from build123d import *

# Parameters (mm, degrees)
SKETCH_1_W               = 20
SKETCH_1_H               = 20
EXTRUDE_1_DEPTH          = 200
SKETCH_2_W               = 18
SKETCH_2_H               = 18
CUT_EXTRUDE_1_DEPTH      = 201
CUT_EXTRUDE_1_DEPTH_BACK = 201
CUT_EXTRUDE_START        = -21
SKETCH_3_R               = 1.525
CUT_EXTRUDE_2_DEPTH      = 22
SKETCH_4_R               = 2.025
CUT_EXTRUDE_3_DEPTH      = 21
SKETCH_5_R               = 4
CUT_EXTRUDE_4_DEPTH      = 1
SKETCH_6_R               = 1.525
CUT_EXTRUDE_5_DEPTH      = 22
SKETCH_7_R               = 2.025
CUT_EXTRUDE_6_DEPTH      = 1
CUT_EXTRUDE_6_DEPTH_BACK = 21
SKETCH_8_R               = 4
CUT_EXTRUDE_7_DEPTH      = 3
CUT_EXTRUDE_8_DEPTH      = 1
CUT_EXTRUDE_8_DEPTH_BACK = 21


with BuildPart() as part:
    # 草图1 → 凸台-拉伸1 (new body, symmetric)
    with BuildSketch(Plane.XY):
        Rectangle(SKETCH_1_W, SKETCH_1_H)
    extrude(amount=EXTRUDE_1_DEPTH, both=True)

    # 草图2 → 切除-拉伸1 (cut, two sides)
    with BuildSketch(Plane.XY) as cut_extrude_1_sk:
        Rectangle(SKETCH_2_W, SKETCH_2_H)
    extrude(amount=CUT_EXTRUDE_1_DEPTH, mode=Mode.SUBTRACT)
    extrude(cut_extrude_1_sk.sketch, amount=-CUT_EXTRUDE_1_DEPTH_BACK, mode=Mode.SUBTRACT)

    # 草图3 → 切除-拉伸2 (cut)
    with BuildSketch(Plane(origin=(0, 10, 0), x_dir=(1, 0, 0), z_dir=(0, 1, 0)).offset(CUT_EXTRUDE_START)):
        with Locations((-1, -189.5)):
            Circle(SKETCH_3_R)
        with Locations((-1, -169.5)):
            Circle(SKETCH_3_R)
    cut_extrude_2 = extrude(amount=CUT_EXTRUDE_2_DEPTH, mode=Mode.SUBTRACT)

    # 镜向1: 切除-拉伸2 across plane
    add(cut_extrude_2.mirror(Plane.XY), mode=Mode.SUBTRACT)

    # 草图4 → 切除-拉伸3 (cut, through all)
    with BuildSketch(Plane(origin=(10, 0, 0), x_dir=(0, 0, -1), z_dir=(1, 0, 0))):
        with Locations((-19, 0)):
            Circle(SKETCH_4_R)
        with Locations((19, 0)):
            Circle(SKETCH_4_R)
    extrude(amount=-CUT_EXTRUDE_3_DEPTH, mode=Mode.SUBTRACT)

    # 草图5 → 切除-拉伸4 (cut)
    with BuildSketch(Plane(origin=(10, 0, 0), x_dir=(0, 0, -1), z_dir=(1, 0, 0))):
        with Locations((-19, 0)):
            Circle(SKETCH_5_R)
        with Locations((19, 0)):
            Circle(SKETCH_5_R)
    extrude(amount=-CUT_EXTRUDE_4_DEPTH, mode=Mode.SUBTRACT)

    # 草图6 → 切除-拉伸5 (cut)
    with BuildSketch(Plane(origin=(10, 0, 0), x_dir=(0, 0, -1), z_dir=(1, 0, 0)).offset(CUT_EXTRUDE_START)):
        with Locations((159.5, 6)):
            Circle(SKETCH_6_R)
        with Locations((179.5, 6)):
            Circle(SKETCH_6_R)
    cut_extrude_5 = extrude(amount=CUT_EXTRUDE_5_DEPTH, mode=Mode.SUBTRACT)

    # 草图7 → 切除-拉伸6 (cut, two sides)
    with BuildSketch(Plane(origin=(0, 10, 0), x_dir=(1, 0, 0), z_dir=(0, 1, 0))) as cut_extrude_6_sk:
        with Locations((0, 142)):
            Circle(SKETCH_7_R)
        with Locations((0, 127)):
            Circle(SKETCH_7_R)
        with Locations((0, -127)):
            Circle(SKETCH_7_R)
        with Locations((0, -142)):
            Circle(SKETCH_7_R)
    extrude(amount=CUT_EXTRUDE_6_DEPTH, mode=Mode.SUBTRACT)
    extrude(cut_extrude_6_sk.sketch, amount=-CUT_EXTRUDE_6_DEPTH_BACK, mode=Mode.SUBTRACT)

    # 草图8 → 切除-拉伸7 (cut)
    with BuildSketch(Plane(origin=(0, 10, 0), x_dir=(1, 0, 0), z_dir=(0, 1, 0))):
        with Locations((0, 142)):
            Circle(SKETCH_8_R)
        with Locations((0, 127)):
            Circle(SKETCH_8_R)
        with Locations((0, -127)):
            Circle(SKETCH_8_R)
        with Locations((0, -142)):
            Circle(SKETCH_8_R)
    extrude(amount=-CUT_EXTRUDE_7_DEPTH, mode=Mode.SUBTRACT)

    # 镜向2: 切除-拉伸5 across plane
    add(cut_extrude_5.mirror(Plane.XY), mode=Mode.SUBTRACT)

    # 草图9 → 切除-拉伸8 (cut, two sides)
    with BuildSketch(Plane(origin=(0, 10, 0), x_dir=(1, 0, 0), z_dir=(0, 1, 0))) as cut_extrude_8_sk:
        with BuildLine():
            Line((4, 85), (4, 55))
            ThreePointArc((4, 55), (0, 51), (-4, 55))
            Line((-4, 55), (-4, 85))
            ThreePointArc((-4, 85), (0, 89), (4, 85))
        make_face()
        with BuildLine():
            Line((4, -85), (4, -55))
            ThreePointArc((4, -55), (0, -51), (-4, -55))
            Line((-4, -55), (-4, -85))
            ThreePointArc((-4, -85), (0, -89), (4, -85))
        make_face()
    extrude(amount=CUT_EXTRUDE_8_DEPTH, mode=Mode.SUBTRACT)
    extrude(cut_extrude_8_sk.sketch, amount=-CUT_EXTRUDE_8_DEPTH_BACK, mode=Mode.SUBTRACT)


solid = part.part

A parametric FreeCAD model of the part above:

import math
import FreeCAD as App
import Part
import Sketcher

V = App.Vector

doc = App.newDocument("Part")
body = doc.addObject("PartDesign::Body", "Body")

# Sketch on XY plane
sketch1 = body.newObject("Sketcher::SketchObject", "Sketch")
sketch1.AttachmentSupport = (doc.getObject("XY_Plane"), [""])
sketch1.MapMode = "FlatFace"
sketch1.addGeometry([
    Part.LineSegment(V(-10, 10, 0), V(-10, -10, 0)),
    Part.LineSegment(V(-10, -10, 0), V(10, -10, 0)),
    Part.LineSegment(V(10, -10, 0), V(10, 10, 0)),
    Part.LineSegment(V(10, 10, 0), V(-10, 10, 0)),
], False)
sketch1.addConstraint([
    Sketcher.Constraint("Coincident", 0, 2, 1, 1),
    Sketcher.Constraint("Coincident", 1, 2, 2, 1),
    Sketcher.Constraint("Coincident", 2, 2, 3, 1),
    Sketcher.Constraint("Coincident", 3, 2, 0, 1),
    Sketcher.Constraint("Vertical", 0),
    Sketcher.Constraint("Horizontal", 1),
    Sketcher.Constraint("Vertical", 2),
    Sketcher.Constraint("Horizontal", 3),
    Sketcher.Constraint("Symmetric", 0, 2, 2, 2, -1, 1),
    Sketcher.Constraint("Equal", 3, 0),
    Sketcher.Constraint("DistanceX", 1, 1, 1, 2, 20.0),
])
pad1 = body.newObject("PartDesign::Pad", "Pad")
pad1.Profile = sketch1
pad1.Length = 400
pad1.Midplane = True

# Sketch on XY plane
sketch2 = body.newObject("Sketcher::SketchObject", "Sketch001")
sketch2.AttachmentSupport = (doc.getObject("XY_Plane"), [""])
sketch2.MapMode = "FlatFace"
sketch2.addGeometry([
    Part.LineSegment(V(-9, 9, 0), V(-9, -9, 0)),
    Part.LineSegment(V(-9, -9, 0), V(9, -9, 0)),
    Part.LineSegment(V(9, -9, 0), V(9, 9, 0)),
    Part.LineSegment(V(9, 9, 0), V(-9, 9, 0)),
], False)
sketch2.addConstraint([
    Sketcher.Constraint("Coincident", 0, 2, 1, 1),
    Sketcher.Constraint("Coincident", 1, 2, 2, 1),
    Sketcher.Constraint("Coincident", 2, 2, 3, 1),
    Sketcher.Constraint("Coincident", 3, 2, 0, 1),
    Sketcher.Constraint("Vertical", 0),
    Sketcher.Constraint("Horizontal", 1),
    Sketcher.Constraint("Vertical", 2),
    Sketcher.Constraint("Horizontal", 3),
    Sketcher.Constraint("Symmetric", 0, 2, 2, 2, -1, 1),
    Sketcher.Constraint("Equal", 3, 0),
    Sketcher.Constraint("DistanceX", 1, 1, 1, 2, 18.0),
])
pocket1 = body.newObject("PartDesign::Pocket", "Pocket")
pocket1.Profile = sketch2
pocket1.Type = "ThroughAll"
pocket1.Midplane = True

# Sketch on XZ plane
sketch3 = body.newObject("Sketcher::SketchObject", "Sketch002")
sketch3.AttachmentSupport = (doc.getObject("XZ_Plane"), [""])
sketch3.MapMode = "FlatFace"
sketch3.AttachmentOffset = App.Placement(V(0, 0, 11), App.Rotation())
sketch3.addGeometry([
    Part.Circle(V(-1, 189.5, 0), V(0, 0, 1), 1.5),
    Part.Circle(V(-1, 169.5, 0), V(0, 0, 1), 1.5),
], False)
sketch3.addConstraint([
    Sketcher.Constraint("Equal", 0, 1),
    Sketcher.Constraint("Vertical", 0, 3, 1, 3),
    Sketcher.Constraint("Diameter", 0, 3.05),
    Sketcher.Constraint("DistanceX", 0, 3, -1, 1, 1.0),
    Sketcher.Constraint("DistanceY", 1, 3, 0, 3, 20.0),
    Sketcher.Constraint("DistanceY", -1, 1, 0, 3, 189.5),
])
pocket2 = body.newObject("PartDesign::Pocket", "Pocket001")
pocket2.Profile = sketch3
pocket2.Length = 22
doc.recompute()

mirrored = body.newObject("PartDesign::Mirrored", "Mirrored")
mirrored.Originals = [pocket2]
mirrored.MirrorPlane = (doc.getObject("XY_Plane"), [""])
body.Tip = mirrored

# Sketch on YZ plane
sketch4 = body.newObject("Sketcher::SketchObject", "Sketch003")
sketch4.AttachmentSupport = (doc.getObject("YZ_Plane"), [""])
sketch4.MapMode = "FlatFace"
sketch4.AttachmentOffset = App.Placement(V(0, 0, 10), App.Rotation())
sketch4.addGeometry([
    Part.Circle(V(0, 19, 0), V(0, 0, 1), 2),
    Part.Circle(V(0, -19, 0), V(0, 0, 1), 2),
], False)
sketch4.addConstraint([
    Sketcher.Constraint("Equal", 0, 1),
    Sketcher.Constraint("Symmetric", 0, 3, 1, 3, -1, 1),
    Sketcher.Constraint("PointOnObject", 0, 3, -2),
    Sketcher.Constraint("Diameter", 0, 4.05),
    Sketcher.Constraint("DistanceY", -1, 1, 0, 3, 19.0),
])
pocket3 = body.newObject("PartDesign::Pocket", "Pocket002")
pocket3.Profile = sketch4
pocket3.Type = "ThroughAll"

# Sketch on YZ plane
sketch5 = body.newObject("Sketcher::SketchObject", "Sketch004")
sketch5.AttachmentSupport = (doc.getObject("YZ_Plane"), [""])
sketch5.MapMode = "FlatFace"
sketch5.AttachmentOffset = App.Placement(V(0, 0, 10), App.Rotation())
sketch5.addGeometry([
    Part.Circle(V(0, 19, 0), V(0, 0, 1), 4),
    Part.Circle(V(0, -19, 0), V(0, 0, 1), 4),
], False)
sketch5.addConstraint([
    Sketcher.Constraint("Equal", 0, 1),
    Sketcher.Constraint("Symmetric", 0, 3, 1, 3, -1, 1),
    Sketcher.Constraint("PointOnObject", 0, 3, -2),
    Sketcher.Constraint("Diameter", 0, 8.0),
    Sketcher.Constraint("DistanceY", -1, 1, 0, 3, 19.0),
])
pocket4 = body.newObject("PartDesign::Pocket", "Pocket003")
pocket4.Profile = sketch5
pocket4.Length = 1

# Sketch on YZ plane
sketch6 = body.newObject("Sketcher::SketchObject", "Sketch005")
sketch6.AttachmentSupport = (doc.getObject("YZ_Plane"), [""])
sketch6.MapMode = "FlatFace"
sketch6.AttachmentOffset = App.Placement(V(0, 0, -11), App.Rotation())
sketch6.addGeometry([
    Part.Circle(V(6, -159.5, 0), V(0, 0, 1), 1.5),
    Part.Circle(V(6, -179.5, 0), V(0, 0, 1), 1.5),
], False)
sketch6.addConstraint([
    Sketcher.Constraint("Equal", 0, 1),
    Sketcher.Constraint("Vertical", 0, 3, 1, 3),
    Sketcher.Constraint("Diameter", 0, 3.05),
    Sketcher.Constraint("DistanceX", -1, 1, 0, 3, 6.0),
    Sketcher.Constraint("DistanceY", 1, 3, 0, 3, 20.0),
    Sketcher.Constraint("DistanceY", 0, 3, -1, 1, 159.5),
])
pocket5 = body.newObject("PartDesign::Pocket", "Pocket004")
pocket5.Profile = sketch6
pocket5.Length = 22
pocket5.Reversed = True

# Sketch on XZ plane
sketch7 = body.newObject("Sketcher::SketchObject", "Sketch006")
sketch7.AttachmentSupport = (doc.getObject("XZ_Plane"), [""])
sketch7.MapMode = "FlatFace"
sketch7.AttachmentOffset = App.Placement(V(0, 0, -10), App.Rotation())
sketch7.addGeometry([
    Part.Circle(V(0, -142, 0), V(0, 0, 1), 2),
    Part.Circle(V(0, -127, 0), V(0, 0, 1), 2),
    Part.Circle(V(0, 127, 0), V(0, 0, 1), 2),
    Part.Circle(V(0, 142, 0), V(0, 0, 1), 2),
], False)
sketch7.addConstraint([
    Sketcher.Constraint("Equal", 0, 1),
    Sketcher.Constraint("Equal", 1, 2),
    Sketcher.Constraint("Equal", 2, 3),
    Sketcher.Constraint("Symmetric", 1, 3, 2, 3, -1, 1),
    Sketcher.Constraint("Symmetric", 0, 3, 3, 3, -1, 1),
    Sketcher.Constraint("PointOnObject", 0, 3, -2),
    Sketcher.Constraint("PointOnObject", 1, 3, -2),
    Sketcher.Constraint("Diameter", 0, 4.05),
    Sketcher.Constraint("DistanceY", 0, 3, -1, 1, 142.0),
    Sketcher.Constraint("DistanceY", 1, 3, -1, 1, 127.0),
])
pocket6 = body.newObject("PartDesign::Pocket", "Pocket005")
pocket6.Profile = sketch7
pocket6.Type = "ThroughAll"
pocket6.Midplane = True

# Sketch on XZ plane
sketch8 = body.newObject("Sketcher::SketchObject", "Sketch007")
sketch8.AttachmentSupport = (doc.getObject("XZ_Plane"), [""])
sketch8.MapMode = "FlatFace"
sketch8.AttachmentOffset = App.Placement(V(0, 0, -10), App.Rotation())
sketch8.addGeometry([
    Part.Circle(V(0, -142, 0), V(0, 0, 1), 4),
    Part.Circle(V(0, -127, 0), V(0, 0, 1), 4),
    Part.Circle(V(0, 127, 0), V(0, 0, 1), 4),
    Part.Circle(V(0, 142, 0), V(0, 0, 1), 4),
], False)
sketch8.addConstraint([
    Sketcher.Constraint("Equal", 0, 1),
    Sketcher.Constraint("Equal", 1, 2),
    Sketcher.Constraint("Equal", 2, 3),
    Sketcher.Constraint("Symmetric", 1, 3, 2, 3, -1, 1),
    Sketcher.Constraint("Symmetric", 0, 3, 3, 3, -1, 1),
    Sketcher.Constraint("PointOnObject", 0, 3, -2),
    Sketcher.Constraint("PointOnObject", 1, 3, -2),
    Sketcher.Constraint("Diameter", 0, 8.0),
    Sketcher.Constraint("DistanceY", 0, 3, -1, 1, 142.0),
    Sketcher.Constraint("DistanceY", 1, 3, -1, 1, 127.0),
])
pocket7 = body.newObject("PartDesign::Pocket", "Pocket006")
pocket7.Profile = sketch8
pocket7.Length = 3
pocket7.Reversed = True
doc.recompute()

mirrored2 = body.newObject("PartDesign::Mirrored", "Mirrored001")
mirrored2.Originals = [pocket5]
mirrored2.MirrorPlane = (doc.getObject("XY_Plane"), [""])
body.Tip = mirrored2

# Sketch on XZ plane
sketch9 = body.newObject("Sketcher::SketchObject", "Sketch008")
sketch9.AttachmentSupport = (doc.getObject("XZ_Plane"), [""])
sketch9.MapMode = "FlatFace"
sketch9.AttachmentOffset = App.Placement(V(0, 0, -10), App.Rotation())
sketch9.addGeometry([
    Part.LineSegment(V(4, -55, 0), V(4, -85, 0)),  # 0
    Part.ArcOfCircle(Part.Circle(V(0, -85, 0), V(0, 0, 1), 4), math.radians(180), math.radians(360)),  # 1
    Part.LineSegment(V(-4, -85, 0), V(-4, -55, 0)),  # 2
    Part.ArcOfCircle(Part.Circle(V(0, -55, 0), V(0, 0, 1), 4), math.radians(0), math.radians(180)),  # 3
    Part.LineSegment(V(4, 85, 0), V(4, 55, 0)),  # 4
    Part.ArcOfCircle(Part.Circle(V(0, 55, 0), V(0, 0, 1), 4), math.radians(180), math.radians(360)),  # 5
    Part.LineSegment(V(-4, 55, 0), V(-4, 85, 0)),  # 6
    Part.ArcOfCircle(Part.Circle(V(0, 85, 0), V(0, 0, 1), 4), math.radians(0), math.radians(180)),  # 7
], False)
sketch9.addConstraint([
    Sketcher.Constraint("Tangent", 0, 2, 1, 2),
    Sketcher.Constraint("Tangent", 1, 1, 2, 1),
    Sketcher.Constraint("Tangent", 2, 2, 3, 2),
    Sketcher.Constraint("Tangent", 3, 1, 0, 1),
    Sketcher.Constraint("Tangent", 4, 2, 5, 2),
    Sketcher.Constraint("Tangent", 5, 1, 6, 1),
    Sketcher.Constraint("Tangent", 6, 2, 7, 2),
    Sketcher.Constraint("Tangent", 7, 1, 4, 1),
    Sketcher.Constraint("Vertical", 0),
    Sketcher.Constraint("Vertical", 2),
    Sketcher.Constraint("Vertical", 4),
    Sketcher.Constraint("Vertical", 6),
    Sketcher.Constraint("Equal", 3, 5),
    Sketcher.Constraint("Symmetric", 3, 3, 5, 3, -1, 1),
    Sketcher.Constraint("Symmetric", 1, 3, 7, 3, -1),
    Sketcher.Constraint("Radius", 1, 4.0),
    Sketcher.Constraint("DistanceY", 0, 2, 0, 1, 30.0),
    Sketcher.Constraint("DistanceY", 1, 3, -1, 1, 85.0),
])
pocket8 = body.newObject("PartDesign::Pocket", "Pocket007")
pocket8.Profile = sketch9
pocket8.Type = "ThroughAll"
pocket8.Midplane = True

doc.recompute()
